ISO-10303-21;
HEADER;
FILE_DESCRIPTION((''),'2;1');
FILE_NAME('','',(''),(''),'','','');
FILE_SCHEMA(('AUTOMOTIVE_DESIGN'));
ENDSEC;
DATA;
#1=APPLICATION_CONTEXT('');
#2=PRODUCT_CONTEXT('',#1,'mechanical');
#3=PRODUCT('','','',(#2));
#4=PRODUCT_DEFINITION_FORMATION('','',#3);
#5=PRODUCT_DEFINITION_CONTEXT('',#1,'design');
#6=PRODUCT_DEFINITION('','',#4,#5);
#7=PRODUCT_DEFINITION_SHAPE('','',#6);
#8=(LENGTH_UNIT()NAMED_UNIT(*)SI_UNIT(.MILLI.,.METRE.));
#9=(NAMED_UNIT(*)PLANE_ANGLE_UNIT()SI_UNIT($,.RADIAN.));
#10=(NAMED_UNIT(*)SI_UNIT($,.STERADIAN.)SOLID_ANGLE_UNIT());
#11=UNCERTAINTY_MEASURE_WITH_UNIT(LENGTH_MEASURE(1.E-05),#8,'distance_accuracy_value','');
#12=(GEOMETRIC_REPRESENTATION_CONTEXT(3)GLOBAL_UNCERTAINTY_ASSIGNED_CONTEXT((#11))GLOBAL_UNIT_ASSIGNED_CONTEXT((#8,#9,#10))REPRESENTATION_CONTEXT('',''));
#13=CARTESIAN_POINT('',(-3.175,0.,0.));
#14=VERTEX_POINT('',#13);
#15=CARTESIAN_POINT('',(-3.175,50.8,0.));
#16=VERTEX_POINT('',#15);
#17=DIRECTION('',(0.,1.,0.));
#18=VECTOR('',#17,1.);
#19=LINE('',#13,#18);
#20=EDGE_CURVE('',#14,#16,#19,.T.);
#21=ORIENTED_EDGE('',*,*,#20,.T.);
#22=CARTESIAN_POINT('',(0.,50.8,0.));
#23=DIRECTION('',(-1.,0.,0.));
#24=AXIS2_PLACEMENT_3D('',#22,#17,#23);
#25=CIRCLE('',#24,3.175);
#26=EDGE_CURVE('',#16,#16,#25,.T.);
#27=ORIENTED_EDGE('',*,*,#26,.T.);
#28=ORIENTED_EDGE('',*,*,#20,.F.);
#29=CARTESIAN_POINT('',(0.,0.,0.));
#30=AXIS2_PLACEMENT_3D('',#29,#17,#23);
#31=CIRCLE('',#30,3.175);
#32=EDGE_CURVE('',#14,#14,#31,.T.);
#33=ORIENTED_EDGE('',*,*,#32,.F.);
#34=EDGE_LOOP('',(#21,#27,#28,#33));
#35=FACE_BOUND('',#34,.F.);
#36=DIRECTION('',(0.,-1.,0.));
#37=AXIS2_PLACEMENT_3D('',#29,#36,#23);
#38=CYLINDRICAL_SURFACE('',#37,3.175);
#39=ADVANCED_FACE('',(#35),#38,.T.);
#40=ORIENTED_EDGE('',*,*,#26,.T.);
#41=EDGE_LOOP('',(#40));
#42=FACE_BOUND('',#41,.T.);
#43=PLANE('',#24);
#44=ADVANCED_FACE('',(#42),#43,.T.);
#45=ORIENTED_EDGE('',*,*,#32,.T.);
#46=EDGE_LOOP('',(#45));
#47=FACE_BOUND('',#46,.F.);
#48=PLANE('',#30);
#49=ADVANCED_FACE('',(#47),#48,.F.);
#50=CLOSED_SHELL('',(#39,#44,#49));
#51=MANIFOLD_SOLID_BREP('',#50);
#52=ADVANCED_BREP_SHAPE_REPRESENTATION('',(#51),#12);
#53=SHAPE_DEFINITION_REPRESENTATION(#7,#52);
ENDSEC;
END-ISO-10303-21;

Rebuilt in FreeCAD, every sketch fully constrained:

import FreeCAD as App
import Part
import Sketcher
Q = App.Units.Quantity

doc = App.newDocument("Part")
body = doc.addObject("PartDesign::Body", "Body")

sketch1 = doc.addObject("Sketcher::SketchObject", "Sketch")
body.addObject(sketch1)
sketch1.AttachmentSupport = (doc.XZ_Plane, [""])
sketch1.MapMode = "FlatFace"
sketch1.addGeometry(Part.Circle(App.Vector(0, 0, 0), App.Vector(0, 0, 1), 3.175), False)
sketch1.addConstraint(Sketcher.Constraint("Coincident", 0, 3, -1, 1))
sketch1.addConstraint(Sketcher.Constraint("Diameter", 0, Q("0.25 in")))
pad1 = doc.addObject("PartDesign::Pad", "Pad")
body.addObject(pad1)
pad1.Profile = sketch1
pad1.Length = Q("2 in")
pad1.Reversed = True

doc.recompute()
